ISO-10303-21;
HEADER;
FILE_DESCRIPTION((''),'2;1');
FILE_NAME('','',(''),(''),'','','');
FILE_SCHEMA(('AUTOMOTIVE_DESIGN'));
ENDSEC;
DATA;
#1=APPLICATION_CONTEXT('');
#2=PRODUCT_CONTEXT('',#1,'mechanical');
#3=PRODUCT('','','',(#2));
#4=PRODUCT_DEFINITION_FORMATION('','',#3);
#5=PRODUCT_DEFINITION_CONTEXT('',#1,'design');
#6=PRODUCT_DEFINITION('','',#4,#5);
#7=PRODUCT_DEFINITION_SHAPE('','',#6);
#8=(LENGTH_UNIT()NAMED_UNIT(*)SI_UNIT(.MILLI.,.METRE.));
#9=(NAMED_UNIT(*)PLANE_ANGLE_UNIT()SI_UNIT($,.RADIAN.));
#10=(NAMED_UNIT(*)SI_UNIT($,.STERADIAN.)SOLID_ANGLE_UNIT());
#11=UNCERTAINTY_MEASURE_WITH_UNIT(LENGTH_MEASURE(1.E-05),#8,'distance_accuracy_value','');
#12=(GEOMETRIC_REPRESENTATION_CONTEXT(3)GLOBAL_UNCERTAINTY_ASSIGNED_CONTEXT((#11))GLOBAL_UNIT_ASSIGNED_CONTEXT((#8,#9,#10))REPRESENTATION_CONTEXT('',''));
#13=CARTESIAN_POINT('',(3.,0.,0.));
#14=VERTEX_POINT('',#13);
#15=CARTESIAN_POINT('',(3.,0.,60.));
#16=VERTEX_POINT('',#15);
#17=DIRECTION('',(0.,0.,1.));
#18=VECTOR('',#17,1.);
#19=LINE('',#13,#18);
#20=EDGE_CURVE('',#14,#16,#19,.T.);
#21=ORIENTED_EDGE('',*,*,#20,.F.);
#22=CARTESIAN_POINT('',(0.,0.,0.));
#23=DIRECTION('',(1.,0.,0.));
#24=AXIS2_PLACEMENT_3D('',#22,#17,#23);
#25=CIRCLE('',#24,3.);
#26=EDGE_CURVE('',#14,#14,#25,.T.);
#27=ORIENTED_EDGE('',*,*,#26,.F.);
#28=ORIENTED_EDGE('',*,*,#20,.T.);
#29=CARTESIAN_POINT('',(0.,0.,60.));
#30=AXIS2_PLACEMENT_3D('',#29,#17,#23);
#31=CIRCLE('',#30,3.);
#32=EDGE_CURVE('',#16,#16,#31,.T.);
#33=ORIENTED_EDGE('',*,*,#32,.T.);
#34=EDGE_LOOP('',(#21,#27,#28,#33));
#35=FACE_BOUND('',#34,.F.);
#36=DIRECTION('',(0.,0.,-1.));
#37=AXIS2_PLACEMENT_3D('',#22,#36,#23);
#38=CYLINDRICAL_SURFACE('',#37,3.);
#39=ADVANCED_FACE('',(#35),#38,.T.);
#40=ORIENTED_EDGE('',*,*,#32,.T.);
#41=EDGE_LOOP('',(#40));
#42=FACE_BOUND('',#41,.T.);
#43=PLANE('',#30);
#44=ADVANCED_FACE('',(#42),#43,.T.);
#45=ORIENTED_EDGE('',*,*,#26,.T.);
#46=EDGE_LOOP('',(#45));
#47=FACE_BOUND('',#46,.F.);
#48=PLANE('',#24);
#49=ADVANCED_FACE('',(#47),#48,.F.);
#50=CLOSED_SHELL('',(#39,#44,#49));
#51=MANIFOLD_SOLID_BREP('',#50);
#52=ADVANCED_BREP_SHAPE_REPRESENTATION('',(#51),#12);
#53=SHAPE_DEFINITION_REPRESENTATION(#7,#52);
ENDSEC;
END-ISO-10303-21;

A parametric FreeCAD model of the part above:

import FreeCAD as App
import Part
import Sketcher

doc = App.newDocument("Part")
body = doc.addObject("PartDesign::Body", "Body")

# Sketch on XY plane
sketch1 = doc.addObject("Sketcher::SketchObject", "Sketch")
body.addObject(sketch1)
sketch1.AttachmentSupport = (doc.XY_Plane, [""])
sketch1.MapMode = "FlatFace"
sketch1.addGeometry(Part.Circle(App.Vector(0, 0, 0), App.Vector(0, 0, 1), 3), False)
sketch1.addConstraint(Sketcher.Constraint("Coincident", 0, 3, -1, 1))
sketch1.addConstraint(Sketcher.Constraint("Diameter", 0, 6.0))
pad1 = doc.addObject("PartDesign::Pad", "Pad")
body.addObject(pad1)
pad1.Profile = sketch1
pad1.Length = 60

doc.recompute()
